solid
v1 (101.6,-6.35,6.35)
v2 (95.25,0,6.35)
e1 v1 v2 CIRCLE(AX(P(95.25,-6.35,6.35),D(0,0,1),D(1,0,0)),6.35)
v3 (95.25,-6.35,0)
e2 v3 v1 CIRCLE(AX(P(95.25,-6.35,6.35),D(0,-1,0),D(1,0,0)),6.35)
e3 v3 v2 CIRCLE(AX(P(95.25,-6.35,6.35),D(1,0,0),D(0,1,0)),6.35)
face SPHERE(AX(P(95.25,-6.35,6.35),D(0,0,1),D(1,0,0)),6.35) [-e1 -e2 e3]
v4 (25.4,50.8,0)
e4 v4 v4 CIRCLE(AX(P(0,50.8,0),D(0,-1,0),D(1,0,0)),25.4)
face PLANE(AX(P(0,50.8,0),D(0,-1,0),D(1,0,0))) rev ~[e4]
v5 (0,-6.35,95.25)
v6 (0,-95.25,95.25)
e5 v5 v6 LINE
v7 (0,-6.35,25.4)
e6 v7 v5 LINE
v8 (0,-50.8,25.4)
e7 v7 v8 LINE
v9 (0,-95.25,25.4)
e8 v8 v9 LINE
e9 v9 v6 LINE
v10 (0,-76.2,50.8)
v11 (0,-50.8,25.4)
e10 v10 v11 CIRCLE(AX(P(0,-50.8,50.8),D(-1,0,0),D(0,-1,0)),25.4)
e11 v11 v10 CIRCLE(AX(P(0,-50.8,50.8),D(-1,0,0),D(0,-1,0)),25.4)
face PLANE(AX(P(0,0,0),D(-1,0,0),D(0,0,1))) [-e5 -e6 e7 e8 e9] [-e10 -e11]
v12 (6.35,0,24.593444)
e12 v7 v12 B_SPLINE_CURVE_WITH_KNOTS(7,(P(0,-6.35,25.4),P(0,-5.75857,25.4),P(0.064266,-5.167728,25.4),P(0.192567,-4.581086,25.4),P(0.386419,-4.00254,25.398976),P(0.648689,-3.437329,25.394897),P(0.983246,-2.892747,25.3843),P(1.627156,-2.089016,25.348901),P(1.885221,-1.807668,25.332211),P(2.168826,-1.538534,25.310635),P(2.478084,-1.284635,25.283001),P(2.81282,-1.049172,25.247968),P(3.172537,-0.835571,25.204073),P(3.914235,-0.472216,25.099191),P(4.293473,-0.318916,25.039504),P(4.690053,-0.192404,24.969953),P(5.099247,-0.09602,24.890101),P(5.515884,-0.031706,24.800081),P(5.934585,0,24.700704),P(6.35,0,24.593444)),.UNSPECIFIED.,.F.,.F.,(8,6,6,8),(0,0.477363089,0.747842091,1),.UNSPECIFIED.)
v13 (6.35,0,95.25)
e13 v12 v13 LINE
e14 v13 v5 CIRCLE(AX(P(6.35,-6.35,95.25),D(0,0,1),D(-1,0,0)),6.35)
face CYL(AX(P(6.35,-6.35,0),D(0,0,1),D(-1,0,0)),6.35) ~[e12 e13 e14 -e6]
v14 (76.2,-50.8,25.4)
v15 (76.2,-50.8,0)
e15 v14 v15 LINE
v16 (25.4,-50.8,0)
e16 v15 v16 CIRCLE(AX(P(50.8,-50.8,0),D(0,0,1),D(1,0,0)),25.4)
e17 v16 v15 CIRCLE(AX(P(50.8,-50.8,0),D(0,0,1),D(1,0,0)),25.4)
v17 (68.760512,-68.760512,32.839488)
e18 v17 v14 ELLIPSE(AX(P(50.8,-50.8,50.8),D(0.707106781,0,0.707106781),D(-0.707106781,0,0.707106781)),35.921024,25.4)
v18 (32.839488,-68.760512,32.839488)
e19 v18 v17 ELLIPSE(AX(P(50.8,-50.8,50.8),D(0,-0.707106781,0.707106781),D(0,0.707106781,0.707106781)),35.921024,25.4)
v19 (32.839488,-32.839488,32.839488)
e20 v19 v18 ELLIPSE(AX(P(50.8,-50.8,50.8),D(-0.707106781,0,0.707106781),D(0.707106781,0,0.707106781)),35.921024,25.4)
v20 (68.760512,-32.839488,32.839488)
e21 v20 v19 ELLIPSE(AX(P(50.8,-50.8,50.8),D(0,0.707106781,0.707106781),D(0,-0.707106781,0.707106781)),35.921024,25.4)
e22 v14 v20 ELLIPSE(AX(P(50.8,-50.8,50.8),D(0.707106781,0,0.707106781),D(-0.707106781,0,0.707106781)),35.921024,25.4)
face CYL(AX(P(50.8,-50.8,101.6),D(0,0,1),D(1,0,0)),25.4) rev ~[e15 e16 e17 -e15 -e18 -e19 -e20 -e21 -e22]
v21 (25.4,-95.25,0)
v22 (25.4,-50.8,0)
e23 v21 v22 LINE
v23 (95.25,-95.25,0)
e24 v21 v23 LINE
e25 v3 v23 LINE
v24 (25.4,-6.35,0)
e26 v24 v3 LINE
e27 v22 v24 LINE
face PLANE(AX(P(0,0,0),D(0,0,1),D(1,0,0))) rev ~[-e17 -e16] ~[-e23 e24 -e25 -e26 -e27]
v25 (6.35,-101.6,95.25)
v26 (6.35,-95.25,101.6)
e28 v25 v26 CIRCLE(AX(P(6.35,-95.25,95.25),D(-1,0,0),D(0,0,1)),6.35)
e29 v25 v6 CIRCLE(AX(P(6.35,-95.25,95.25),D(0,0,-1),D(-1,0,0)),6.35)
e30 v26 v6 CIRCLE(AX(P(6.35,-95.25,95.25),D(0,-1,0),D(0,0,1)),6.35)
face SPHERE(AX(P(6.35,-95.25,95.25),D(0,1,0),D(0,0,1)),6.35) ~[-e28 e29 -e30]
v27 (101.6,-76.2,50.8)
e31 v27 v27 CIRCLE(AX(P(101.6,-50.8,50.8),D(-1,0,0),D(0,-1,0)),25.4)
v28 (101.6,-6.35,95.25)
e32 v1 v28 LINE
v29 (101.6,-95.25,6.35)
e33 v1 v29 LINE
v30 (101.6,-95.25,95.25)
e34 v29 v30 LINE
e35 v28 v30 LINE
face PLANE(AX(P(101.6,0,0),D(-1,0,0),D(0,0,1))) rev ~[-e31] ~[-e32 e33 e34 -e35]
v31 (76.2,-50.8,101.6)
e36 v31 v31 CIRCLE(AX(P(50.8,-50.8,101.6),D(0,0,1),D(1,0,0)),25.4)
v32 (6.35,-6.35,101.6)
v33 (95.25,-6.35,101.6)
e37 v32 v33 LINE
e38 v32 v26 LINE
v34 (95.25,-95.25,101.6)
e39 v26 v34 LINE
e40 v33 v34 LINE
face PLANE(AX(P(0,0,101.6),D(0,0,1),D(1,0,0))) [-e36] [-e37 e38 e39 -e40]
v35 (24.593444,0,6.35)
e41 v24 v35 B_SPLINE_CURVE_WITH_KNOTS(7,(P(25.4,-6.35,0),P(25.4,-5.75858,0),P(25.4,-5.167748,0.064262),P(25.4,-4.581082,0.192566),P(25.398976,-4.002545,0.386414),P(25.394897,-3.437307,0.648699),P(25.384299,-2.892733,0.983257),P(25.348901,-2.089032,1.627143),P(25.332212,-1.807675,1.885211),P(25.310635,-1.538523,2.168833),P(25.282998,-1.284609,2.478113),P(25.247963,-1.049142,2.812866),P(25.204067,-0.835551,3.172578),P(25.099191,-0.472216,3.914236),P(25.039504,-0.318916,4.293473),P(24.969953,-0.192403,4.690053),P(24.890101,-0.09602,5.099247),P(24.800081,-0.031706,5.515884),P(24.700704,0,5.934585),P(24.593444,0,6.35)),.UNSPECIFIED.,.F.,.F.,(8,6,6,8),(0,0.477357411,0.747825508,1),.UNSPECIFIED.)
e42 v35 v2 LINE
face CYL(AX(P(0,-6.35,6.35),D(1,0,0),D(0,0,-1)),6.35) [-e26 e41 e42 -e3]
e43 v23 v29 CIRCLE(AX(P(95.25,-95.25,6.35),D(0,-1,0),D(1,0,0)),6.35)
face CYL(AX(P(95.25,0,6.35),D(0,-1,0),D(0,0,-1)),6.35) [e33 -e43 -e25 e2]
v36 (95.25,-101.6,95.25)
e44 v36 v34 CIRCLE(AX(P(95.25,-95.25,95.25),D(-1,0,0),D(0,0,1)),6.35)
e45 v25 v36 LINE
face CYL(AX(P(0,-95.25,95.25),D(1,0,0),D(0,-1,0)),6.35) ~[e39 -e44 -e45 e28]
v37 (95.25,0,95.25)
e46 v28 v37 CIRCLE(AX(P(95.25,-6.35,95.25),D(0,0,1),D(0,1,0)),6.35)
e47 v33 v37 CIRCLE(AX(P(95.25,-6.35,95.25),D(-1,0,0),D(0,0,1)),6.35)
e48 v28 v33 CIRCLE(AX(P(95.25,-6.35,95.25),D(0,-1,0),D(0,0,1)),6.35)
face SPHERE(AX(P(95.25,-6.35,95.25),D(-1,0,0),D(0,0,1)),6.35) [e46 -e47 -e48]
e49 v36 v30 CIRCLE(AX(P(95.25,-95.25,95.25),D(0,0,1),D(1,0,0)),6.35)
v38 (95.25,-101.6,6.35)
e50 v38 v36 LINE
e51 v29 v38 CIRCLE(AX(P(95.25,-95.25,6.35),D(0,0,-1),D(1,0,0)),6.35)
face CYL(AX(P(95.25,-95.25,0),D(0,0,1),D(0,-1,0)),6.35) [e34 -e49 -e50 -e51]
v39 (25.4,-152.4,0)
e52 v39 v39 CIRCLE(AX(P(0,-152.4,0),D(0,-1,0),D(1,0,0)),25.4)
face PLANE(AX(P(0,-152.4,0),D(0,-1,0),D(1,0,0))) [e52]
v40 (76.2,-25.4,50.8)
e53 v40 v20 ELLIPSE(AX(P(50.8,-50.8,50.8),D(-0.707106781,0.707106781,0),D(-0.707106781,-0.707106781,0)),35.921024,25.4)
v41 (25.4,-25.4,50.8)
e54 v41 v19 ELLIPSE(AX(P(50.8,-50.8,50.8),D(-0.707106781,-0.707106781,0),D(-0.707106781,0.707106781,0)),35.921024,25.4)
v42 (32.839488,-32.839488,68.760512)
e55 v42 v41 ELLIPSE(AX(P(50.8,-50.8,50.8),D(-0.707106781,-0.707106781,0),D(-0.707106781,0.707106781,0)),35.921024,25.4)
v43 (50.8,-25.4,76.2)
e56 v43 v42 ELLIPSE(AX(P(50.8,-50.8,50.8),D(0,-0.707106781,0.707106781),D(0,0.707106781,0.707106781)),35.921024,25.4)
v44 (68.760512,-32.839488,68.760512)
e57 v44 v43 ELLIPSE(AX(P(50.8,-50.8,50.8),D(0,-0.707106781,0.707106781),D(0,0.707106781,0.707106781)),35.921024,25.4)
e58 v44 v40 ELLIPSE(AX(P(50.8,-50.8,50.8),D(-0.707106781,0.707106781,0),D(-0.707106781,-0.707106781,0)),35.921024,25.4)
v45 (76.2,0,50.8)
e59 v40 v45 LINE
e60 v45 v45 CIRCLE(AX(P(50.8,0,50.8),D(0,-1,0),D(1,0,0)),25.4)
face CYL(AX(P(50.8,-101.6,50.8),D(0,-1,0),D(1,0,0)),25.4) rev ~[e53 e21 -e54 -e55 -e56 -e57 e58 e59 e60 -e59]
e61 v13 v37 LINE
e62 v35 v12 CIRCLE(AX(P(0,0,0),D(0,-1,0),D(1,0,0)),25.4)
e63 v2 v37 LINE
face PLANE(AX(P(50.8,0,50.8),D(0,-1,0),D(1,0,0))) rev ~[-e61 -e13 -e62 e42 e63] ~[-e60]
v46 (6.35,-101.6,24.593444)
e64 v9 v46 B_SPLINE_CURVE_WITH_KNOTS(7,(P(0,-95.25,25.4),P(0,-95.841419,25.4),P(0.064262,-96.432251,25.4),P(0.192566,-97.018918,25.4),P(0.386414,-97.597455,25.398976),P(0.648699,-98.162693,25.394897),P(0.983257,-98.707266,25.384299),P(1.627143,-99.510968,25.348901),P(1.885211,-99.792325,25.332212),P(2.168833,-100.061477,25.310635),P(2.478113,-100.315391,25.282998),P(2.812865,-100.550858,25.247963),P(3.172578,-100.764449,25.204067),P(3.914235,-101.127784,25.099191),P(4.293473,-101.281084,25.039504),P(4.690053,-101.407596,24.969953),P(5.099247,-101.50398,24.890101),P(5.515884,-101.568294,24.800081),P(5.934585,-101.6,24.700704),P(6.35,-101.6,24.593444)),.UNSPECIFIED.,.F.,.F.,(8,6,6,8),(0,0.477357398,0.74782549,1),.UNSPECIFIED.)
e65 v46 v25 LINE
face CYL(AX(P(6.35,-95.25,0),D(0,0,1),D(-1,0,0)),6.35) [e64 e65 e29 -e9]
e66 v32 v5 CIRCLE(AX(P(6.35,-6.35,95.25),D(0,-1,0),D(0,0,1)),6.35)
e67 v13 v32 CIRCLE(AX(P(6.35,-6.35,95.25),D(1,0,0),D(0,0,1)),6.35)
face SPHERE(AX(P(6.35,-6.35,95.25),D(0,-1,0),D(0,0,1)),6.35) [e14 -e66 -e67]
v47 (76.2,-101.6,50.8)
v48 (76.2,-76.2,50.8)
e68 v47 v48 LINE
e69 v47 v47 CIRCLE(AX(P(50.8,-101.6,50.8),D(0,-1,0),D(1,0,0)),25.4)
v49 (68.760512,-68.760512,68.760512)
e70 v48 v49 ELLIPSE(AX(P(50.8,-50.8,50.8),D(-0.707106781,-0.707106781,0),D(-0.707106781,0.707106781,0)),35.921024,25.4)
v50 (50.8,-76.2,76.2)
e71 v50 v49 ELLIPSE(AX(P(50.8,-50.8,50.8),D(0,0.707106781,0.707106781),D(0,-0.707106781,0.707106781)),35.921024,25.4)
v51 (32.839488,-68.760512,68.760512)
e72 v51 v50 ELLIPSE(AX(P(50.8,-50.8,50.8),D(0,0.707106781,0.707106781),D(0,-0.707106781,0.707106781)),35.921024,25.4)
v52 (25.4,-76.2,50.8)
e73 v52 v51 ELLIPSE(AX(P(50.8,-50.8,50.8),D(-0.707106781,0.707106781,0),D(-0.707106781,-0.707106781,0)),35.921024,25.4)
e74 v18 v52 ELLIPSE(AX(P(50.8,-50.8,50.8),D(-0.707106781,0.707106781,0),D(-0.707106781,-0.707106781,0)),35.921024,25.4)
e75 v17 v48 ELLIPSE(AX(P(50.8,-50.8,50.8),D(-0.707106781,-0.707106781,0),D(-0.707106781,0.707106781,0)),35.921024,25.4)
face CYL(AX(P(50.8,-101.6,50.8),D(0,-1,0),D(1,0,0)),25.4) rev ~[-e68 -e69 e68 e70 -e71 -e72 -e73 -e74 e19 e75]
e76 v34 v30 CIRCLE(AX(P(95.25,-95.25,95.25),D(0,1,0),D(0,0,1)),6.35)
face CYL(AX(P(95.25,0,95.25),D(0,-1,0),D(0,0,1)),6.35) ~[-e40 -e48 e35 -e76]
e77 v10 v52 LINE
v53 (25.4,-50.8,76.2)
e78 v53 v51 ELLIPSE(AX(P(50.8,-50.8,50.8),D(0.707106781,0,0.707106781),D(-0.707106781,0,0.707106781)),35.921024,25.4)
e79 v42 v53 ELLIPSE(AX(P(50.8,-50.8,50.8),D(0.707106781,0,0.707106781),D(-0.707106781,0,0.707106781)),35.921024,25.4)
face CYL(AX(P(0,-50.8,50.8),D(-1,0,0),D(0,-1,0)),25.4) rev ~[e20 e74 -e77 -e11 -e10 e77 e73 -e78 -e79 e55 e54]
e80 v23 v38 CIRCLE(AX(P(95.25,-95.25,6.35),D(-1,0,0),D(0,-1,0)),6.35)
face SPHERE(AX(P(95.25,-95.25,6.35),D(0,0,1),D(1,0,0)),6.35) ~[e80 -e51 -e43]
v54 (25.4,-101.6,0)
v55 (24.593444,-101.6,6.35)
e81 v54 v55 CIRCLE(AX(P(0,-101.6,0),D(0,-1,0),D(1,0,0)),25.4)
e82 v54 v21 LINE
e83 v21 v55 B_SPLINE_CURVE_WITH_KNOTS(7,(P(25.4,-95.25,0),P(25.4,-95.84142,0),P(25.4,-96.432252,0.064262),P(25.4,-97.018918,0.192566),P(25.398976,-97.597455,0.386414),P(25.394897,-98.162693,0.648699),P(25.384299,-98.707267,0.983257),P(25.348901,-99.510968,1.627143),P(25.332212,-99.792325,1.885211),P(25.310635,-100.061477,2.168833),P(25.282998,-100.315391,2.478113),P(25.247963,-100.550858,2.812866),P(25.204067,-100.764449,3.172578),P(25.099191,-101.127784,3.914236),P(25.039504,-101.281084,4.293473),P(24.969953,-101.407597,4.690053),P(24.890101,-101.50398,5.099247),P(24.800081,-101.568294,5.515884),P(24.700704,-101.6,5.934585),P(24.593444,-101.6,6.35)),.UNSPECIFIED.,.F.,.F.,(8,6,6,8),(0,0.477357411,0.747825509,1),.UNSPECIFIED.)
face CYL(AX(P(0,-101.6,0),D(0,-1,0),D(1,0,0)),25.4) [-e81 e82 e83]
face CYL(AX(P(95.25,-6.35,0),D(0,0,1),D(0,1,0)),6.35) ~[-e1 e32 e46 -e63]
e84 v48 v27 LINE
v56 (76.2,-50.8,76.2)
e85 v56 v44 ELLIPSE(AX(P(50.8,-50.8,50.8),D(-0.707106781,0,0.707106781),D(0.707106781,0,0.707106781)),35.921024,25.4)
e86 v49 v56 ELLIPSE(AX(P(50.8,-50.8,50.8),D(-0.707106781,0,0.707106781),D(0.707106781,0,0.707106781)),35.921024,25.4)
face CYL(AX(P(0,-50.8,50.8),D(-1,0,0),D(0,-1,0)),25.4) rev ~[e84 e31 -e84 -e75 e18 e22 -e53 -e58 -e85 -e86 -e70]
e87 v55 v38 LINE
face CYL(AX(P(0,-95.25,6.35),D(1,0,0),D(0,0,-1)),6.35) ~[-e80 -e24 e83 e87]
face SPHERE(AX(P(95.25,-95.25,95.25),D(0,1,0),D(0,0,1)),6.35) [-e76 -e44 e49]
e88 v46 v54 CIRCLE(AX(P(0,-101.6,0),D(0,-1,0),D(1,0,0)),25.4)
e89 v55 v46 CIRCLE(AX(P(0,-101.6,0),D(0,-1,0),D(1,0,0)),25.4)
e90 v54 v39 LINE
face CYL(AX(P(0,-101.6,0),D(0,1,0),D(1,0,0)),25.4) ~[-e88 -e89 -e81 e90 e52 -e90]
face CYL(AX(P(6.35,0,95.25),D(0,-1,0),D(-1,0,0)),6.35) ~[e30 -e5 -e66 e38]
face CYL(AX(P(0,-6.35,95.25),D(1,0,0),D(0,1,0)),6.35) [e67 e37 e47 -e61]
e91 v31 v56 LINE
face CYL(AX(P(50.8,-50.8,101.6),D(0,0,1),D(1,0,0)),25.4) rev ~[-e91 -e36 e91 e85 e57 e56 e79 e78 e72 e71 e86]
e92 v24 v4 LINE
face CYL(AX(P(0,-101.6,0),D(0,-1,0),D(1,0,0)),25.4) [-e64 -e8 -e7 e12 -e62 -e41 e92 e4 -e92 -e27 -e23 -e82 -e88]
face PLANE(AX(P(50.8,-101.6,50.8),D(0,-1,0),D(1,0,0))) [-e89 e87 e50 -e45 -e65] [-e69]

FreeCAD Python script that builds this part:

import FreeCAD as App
import Part
import Sketcher

V = App.Vector
Q = App.Units.Quantity


def edges_at(feature, points):
    """Names of the edges that pass closest to the given points."""
    edges = feature.Shape.Edges
    near = lambda p: min(range(len(edges)), key=lambda i: edges[i].distToShape(Part.Vertex(*p))[0])
    return sorted({f"Edge{near(p) + 1}" for p in points})


def add_polygon(sketch, points):
    """Adds a closed chain of lines whose ends are joined by coincident constraints."""
    first, n = sketch.GeometryCount, len(points)
    for a, b in zip(points, points[1:] + points[:1]):
        sketch.addGeometry(Part.LineSegment(App.Vector(*a, 0), App.Vector(*b, 0)), False)
    for i in range(n):
        sketch.addConstraint(Sketcher.Constraint("Coincident", first + i, 2, first + (i + 1) % n, 1))

doc = App.newDocument("Part")
body = doc.addObject("PartDesign::Body", "Body")

sketch1 = body.newObject("Sketcher::SketchObject", "Sketch")
sketch1.AttachmentSupport = (doc.getObject("XZ_Plane"), [""])
sketch1.MapMode = "FlatFace"
add_polygon(sketch1, [(0, 101.6), (0, 0), (101.6, 0), (101.6, 101.6)])
sketch1.addConstraint([
    Sketcher.Constraint("Vertical", 0),
    Sketcher.Constraint("Horizontal", 1),
    Sketcher.Constraint("Vertical", 2),
    Sketcher.Constraint("Horizontal", 3),
    Sketcher.Constraint("Coincident", 0, 2, -1, 1),
    Sketcher.Constraint("Equal", 3, 0),
    Sketcher.Constraint("DistanceX", 1, 1, 1, 2, Q("4 in")),
])
pad1 = body.newObject("PartDesign::Pad", "Pad")
pad1.Profile = sketch1
pad1.Length = Q("4 in")

sketch2 = body.newObject("Sketcher::SketchObject", "Sketch001")
sketch2.AttachmentSupport = (doc.getObject("XY_Plane"), [""])
sketch2.MapMode = "FlatFace"
sketch2.AttachmentOffset = App.Placement(V(0, 0, 4 * 25.4), App.Rotation())
sketch2.addGeometry(Part.Circle(V(50.8, -50.8, 0), V(0, 0, 1), 25.4), False)
sketch2.addConstraint([
    Sketcher.Constraint("Diameter", 0, Q("2 in")),
    Sketcher.Constraint("DistanceX", -1, 1, 0, 3, Q("2 in")),
    Sketcher.Constraint("DistanceY", 0, 3, -1, 1, Q("2 in")),
])
pocket1 = body.newObject("PartDesign::Pocket", "Pocket")
pocket1.Profile = sketch2
pocket1.Length = Q("4 in")

sketch3 = body.newObject("Sketcher::SketchObject", "Sketch002")
sketch3.AttachmentSupport = (doc.getObject("YZ_Plane"), [""])
sketch3.MapMode = "FlatFace"
sketch3.addGeometry(Part.Circle(V(-50.8, 50.8, 0), V(0, 0, 1), 25.4), False)
sketch3.addConstraint([
    Sketcher.Constraint("Diameter", 0, Q("2 in")),
    Sketcher.Constraint("DistanceX", 0, 3, -1, 1, Q("2 in")),
    Sketcher.Constraint("DistanceY", -1, 1, 0, 3, Q("2 in")),
])
pocket2 = body.newObject("PartDesign::Pocket", "Pocket001")
pocket2.Profile = sketch3
pocket2.Length = Q("4 in")
pocket2.Reversed = True

sketch4 = body.newObject("Sketcher::SketchObject", "Sketch003")
sketch4.AttachmentSupport = (doc.getObject("XZ_Plane"), [""])
sketch4.MapMode = "FlatFace"
sketch4.AttachmentOffset = App.Placement(V(0, 0, 4 * 25.4), App.Rotation())
sketch4.addGeometry(Part.Circle(V(50.8, 50.8, 0), V(0, 0, 1), 25.4), False)
sketch4.addConstraint([
    Sketcher.Constraint("Diameter", 0, Q("2 in")),
    Sketcher.Constraint("DistanceX", -1, 1, 0, 3, Q("2 in")),
    Sketcher.Constraint("DistanceY", -1, 1, 0, 3, Q("2 in")),
])
pocket3 = body.newObject("PartDesign::Pocket", "Pocket002")
pocket3.Profile = sketch4
pocket3.Length = Q("4 in")
doc.recompute()

fillet = body.newObject("PartDesign::Fillet", "Fillet")
fillet.Base = (pocket3, edges_at(pocket3, [
    (0, -50.8, 101.6),
    (50.8, 0, 101.6),
    (101.6, -50.8, 101.6),
    (50.8, -101.6, 101.6),
    (0, -101.6, 50.8),
    (101.6, -101.6, 50.8),
    (101.6, 0, 50.8),
    (101.6, -50.8, 0),
    (50.8, -101.6, 0),
    (50.8, 0, 0),
    (0, 0, 50.8),
    (0, -50.8, 0),
]))
fillet.Radius = Q("0.25 in")

sketch5 = body.newObject("Sketcher::SketchObject", "Sketch004")
sketch5.AttachmentSupport = (doc.getObject("XZ_Plane"), [""])
sketch5.MapMode = "FlatFace"
sketch5.AttachmentOffset = App.Placement(V(0, 0, 4 * 25.4), App.Rotation())
sketch5.addGeometry(Part.Circle(V(0, 0, 0), V(0, 0, 1), 25.4), False)
sketch5.addConstraint([
    Sketcher.Constraint("Coincident", 0, 3, -1, 1),
    Sketcher.Constraint("Diameter", 0, Q("2 in")),
])
pad2 = body.newObject("PartDesign::Pad", "Pad001")
pad2.Profile = sketch5
pad2.Type = "TwoLengths"
pad2.Length = Q("2 in")
pad2.Length2 = Q("6 in")

doc.recompute()
